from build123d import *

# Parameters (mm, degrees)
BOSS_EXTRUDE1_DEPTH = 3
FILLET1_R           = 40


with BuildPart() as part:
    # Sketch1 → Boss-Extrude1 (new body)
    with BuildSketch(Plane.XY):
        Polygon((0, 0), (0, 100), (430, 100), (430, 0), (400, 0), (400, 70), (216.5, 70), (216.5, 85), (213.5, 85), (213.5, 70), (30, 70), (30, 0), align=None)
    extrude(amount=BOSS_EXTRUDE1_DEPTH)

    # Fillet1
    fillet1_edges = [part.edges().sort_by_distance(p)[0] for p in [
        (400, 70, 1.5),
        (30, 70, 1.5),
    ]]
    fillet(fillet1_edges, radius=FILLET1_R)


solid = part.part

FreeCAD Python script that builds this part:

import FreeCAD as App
import Part
import Sketcher
Q = App.Units.Quantity


def edges_at(feature, points):
    """Names of the edges that pass closest to the given points."""
    edges = feature.Shape.Edges
    near = lambda p: min(range(len(edges)), key=lambda i: edges[i].distToShape(Part.Vertex(*p))[0])
    return sorted({f"Edge{near(p) + 1}" for p in points})

doc = App.newDocument("Part")
body = doc.addObject("PartDesign::Body", "Body")

# Sketch on XY plane
sketch1 = body.newObject("Sketcher::SketchObject", "Sketch")
sketch1.AttachmentSupport = (doc.getObject("XY_Plane"), [""])
sketch1.MapMode = "FlatFace"
sketch1.addGeometry([
    Part.LineSegment(App.Vector(0, 100, 0), App.Vector(0, 0, 0)),  # 0
    Part.LineSegment(App.Vector(0, 0, 0), App.Vector(30, 0, 0)),  # 1
    Part.LineSegment(App.Vector(30, 0, 0), App.Vector(30, 70, 0)),  # 2
    Part.LineSegment(App.Vector(30, 70, 0), App.Vector(213.5, 70, 0)),  # 3
    Part.LineSegment(App.Vector(213.5, 70, 0), App.Vector(213.5, 85, 0)),  # 4
    Part.LineSegment(App.Vector(213.5, 85, 0), App.Vector(216.5, 85, 0)),  # 5
    Part.LineSegment(App.Vector(216.5, 85, 0), App.Vector(216.5, 70, 0)),  # 6
    Part.LineSegment(App.Vector(216.5, 70, 0), App.Vector(400, 70, 0)),  # 7
    Part.LineSegment(App.Vector(400, 70, 0), App.Vector(400, 0, 0)),  # 8
    Part.LineSegment(App.Vector(400, 0, 0), App.Vector(430, 0, 0)),  # 9
    Part.LineSegment(App.Vector(430, 0, 0), App.Vector(430, 100, 0)),  # 10
    Part.LineSegment(App.Vector(430, 100, 0), App.Vector(0, 100, 0)),  # 11
], False)
sketch1.addConstraint([
    Sketcher.Constraint("Coincident", 0, 2, 1, 1),
    Sketcher.Constraint("Coincident", 1, 2, 2, 1),
    Sketcher.Constraint("Coincident", 2, 2, 3, 1),
    Sketcher.Constraint("Coincident", 3, 2, 4, 1),
    Sketcher.Constraint("Coincident", 4, 2, 5, 1),
    Sketcher.Constraint("Coincident", 5, 2, 6, 1),
    Sketcher.Constraint("Coincident", 6, 2, 7, 1),
    Sketcher.Constraint("Coincident", 7, 2, 8, 1),
    Sketcher.Constraint("Coincident", 8, 2, 9, 1),
    Sketcher.Constraint("Coincident", 9, 2, 10, 1),
    Sketcher.Constraint("Coincident", 10, 2, 11, 1),
    Sketcher.Constraint("Coincident", 11, 2, 0, 1),
    Sketcher.Constraint("Vertical", 0),
    Sketcher.Constraint("Horizontal", 1),
    Sketcher.Constraint("Vertical", 2),
    Sketcher.Constraint("Horizontal", 3),
    Sketcher.Constraint("Vertical", 4),
    Sketcher.Constraint("Horizontal", 5),
    Sketcher.Constraint("Vertical", 6),
    Sketcher.Constraint("Horizontal", 7),
    Sketcher.Constraint("Vertical", 8),
    Sketcher.Constraint("Horizontal", 9),
    Sketcher.Constraint("Vertical", 10),
    Sketcher.Constraint("Horizontal", 11),
    Sketcher.Constraint("Coincident", 0, 2, -1, 1),
    Sketcher.Constraint("PointOnObject", 8, 2, -1),
    Sketcher.Constraint("Horizontal", 3, 2, 6, 2),
    Sketcher.Constraint("Equal", 3, 7),
    Sketcher.Constraint("Equal", 1, 9),
    Sketcher.Constraint("DistanceX", 1, 1, 1, 2, Q("30 mm")),
    Sketcher.Constraint("DistanceX", 5, 1, 5, 2, Q("3 mm")),
    Sketcher.Constraint("DistanceX", 11, 2, 11, 1, Q("430 mm")),
    Sketcher.Constraint("DistanceY", 0, 2, 0, 1, Q("100 mm")),
    Sketcher.Constraint("DistanceY", 2, 1, 2, 2, Q("70 mm")),
    Sketcher.Constraint("DistanceY", 4, 1, 4, 2, Q("15 mm")),
])
pad1 = body.newObject("PartDesign::Pad", "Pad")
pad1.Profile = sketch1
pad1.Length = 3
doc.recompute()

fillet = body.newObject("PartDesign::Fillet", "Fillet")
fillet.Base = (pad1, edges_at(pad1, [(400, 70, 1.5), (30, 70, 1.5)]))
fillet.Radius = 40

doc.recompute()
